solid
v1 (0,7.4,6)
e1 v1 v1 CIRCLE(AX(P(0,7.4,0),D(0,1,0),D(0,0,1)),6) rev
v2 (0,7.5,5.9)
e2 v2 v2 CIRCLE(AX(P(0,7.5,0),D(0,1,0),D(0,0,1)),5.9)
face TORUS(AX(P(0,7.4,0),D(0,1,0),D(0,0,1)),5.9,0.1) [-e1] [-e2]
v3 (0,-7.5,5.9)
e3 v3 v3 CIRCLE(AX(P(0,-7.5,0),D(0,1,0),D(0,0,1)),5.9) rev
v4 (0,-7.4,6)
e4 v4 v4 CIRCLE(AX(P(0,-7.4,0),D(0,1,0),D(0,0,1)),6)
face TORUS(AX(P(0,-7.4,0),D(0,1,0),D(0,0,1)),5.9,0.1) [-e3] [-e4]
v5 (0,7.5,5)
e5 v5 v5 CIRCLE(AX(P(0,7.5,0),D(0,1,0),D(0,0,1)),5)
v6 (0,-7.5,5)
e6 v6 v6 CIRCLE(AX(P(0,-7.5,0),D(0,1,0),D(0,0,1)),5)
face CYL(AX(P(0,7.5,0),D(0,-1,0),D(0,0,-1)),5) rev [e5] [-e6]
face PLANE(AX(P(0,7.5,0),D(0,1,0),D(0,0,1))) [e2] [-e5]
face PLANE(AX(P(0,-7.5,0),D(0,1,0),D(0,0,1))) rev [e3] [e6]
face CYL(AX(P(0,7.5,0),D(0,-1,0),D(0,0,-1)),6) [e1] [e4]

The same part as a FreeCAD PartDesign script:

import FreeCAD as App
import Part
import Sketcher

V = App.Vector


def edges_at(feature, points):
    """Names of the edges that pass closest to the given points."""
    edges = feature.Shape.Edges
    near = lambda p: min(range(len(edges)), key=lambda i: edges[i].distToShape(Part.Vertex(*p))[0])
    return sorted({f"Edge{near(p) + 1}" for p in points})

doc = App.newDocument("Part")
body = doc.addObject("PartDesign::Body", "Body")

sketch1 = doc.addObject("Sketcher::SketchObject", "Sketch")
body.addObject(sketch1)
sketch1.AttachmentSupport = (doc.XZ_Plane, [""])
sketch1.MapMode = "FlatFace"
sketch1.addGeometry([
    Part.Circle(V(0, 0, 0), V(0, 0, 1), 6),
    Part.Circle(V(0, 0, 0), V(0, 0, 1), 5),
], False)
sketch1.addConstraint([
    Sketcher.Constraint("Coincident", 0, 3, -1, 1),
    Sketcher.Constraint("Coincident", 1, 3, -1, 1),
    Sketcher.Constraint("Diameter", 0, 12.0),
    Sketcher.Constraint("Diameter", 1, 10.0),
])
pad1 = doc.addObject("PartDesign::Pad", "Pad")
body.addObject(pad1)
pad1.Profile = sketch1
pad1.Length = 15
pad1.Midplane = True
doc.recompute()

fillet = doc.addObject("PartDesign::Fillet", "Fillet")
body.addObject(fillet)
fillet.Base = (pad1, edges_at(pad1, [(0, -7.5, -6), (0, 7.5, -6)]))
fillet.Radius = 0.1

doc.recompute()
